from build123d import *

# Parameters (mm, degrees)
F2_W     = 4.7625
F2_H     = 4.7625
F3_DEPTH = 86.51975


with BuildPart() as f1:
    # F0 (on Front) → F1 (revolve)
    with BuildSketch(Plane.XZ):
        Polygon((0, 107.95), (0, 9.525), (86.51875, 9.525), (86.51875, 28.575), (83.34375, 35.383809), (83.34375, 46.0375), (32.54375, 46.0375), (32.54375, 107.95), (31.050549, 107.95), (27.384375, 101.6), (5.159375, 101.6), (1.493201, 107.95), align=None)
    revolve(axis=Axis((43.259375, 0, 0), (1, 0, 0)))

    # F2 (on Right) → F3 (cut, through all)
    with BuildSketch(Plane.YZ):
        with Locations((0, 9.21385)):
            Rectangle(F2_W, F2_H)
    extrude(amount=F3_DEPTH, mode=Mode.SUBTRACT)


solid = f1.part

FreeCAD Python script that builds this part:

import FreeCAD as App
import Part
import Sketcher
from FreeCAD import Vector
Q = App.Units.Quantity


def add_polygon(sketch, points):
    """Adds a closed chain of lines whose ends are joined by coincident constraints."""
    first, n = sketch.GeometryCount, len(points)
    for a, b in zip(points, points[1:] + points[:1]):
        sketch.addGeometry(Part.LineSegment(App.Vector(*a, 0), App.Vector(*b, 0)), False)
    for i in range(n):
        sketch.addConstraint(Sketcher.Constraint("Coincident", first + i, 2, first + (i + 1) % n, 1))

doc = App.newDocument("Part")
body = doc.addObject("PartDesign::Body", "Body")

# Sketch on XZ plane
sketch1 = body.newObject("Sketcher::SketchObject", "Sketch")
sketch1.AttachmentSupport = (doc.getObject("XZ_Plane"), [""])
sketch1.MapMode = "FlatFace"
add_polygon(sketch1, [(0, 108), (0, 9.5), (86.5, 9.5), (86.5, 28.6), (83.3, 35.4), (83.3, 46), (32.5, 46), (32.5, 108), (31.1, 108), (27.4, 101.6), (5.2, 101.6), (1.5, 108)])  # lines 0-11
sketch1.addConstraint([
    Sketcher.Constraint("Vertical", 0),
    Sketcher.Constraint("Horizontal", 1),
    Sketcher.Constraint("Vertical", 2),
    Sketcher.Constraint("Vertical", 4),
    Sketcher.Constraint("Horizontal", 5),
    Sketcher.Constraint("Vertical", 6),
    Sketcher.Constraint("Horizontal", 7),
    Sketcher.Constraint("Horizontal", 9),
    Sketcher.Constraint("Horizontal", 11),
    Sketcher.Constraint("PointOnObject", 0, 2, -2),
    Sketcher.Constraint("Horizontal", 7, 2, 10, 2),
    Sketcher.Constraint("Equal", 7, 11),
    Sketcher.Constraint("Equal", 8, 10),
    Sketcher.Constraint("DistanceX", 5, 2, 5, 1, Q("2 in")),
    Sketcher.Constraint("DistanceY", -1, 1, 8, 2, Q("4 in")),
    Sketcher.Constraint("Angle", 3, Q("115.000002 deg")),
    Sketcher.Constraint("Angle", 8, Q("-119.999999 deg")),
    Sketcher.Constraint("DistanceY", 2, 1, 2, 2, Q("0.75 in")),
    Sketcher.Constraint("DistanceX", 1, 1, 1, 2, Q("3.40625 in")),
    Sketcher.Constraint("DistanceX", 9, 2, 9, 1, Q("0.875 in")),
    Sketcher.Constraint("DistanceY", 0, 2, 0, 1, Q("3.875 in")),
    Sketcher.Constraint("DistanceY", 6, 1, 6, 2, Q("2.4375 in")),
    Sketcher.Constraint("DistanceY", -1, 1, 6, 2, Q("4.25 in")),
    Sketcher.Constraint("DistanceX", -1, 1, 3, 2, Q("3.28125 in")),
])
revolution = body.newObject("PartDesign::Revolution", "Revolution")
revolution.Profile = sketch1
revolution.ReferenceAxis = (sketch1, ["H_Axis"])
revolution.Angle = 360

# Sketch on YZ plane
sketch2 = body.newObject("Sketcher::SketchObject", "Sketch001")
sketch2.AttachmentSupport = (doc.getObject("YZ_Plane"), [""])
sketch2.MapMode = "FlatFace"
add_polygon(sketch2, [(-2.4, 11.6), (-2.4, 6.8), (2.4, 6.8), (2.4, 11.6)])  # lines 0-3
sketch2.addConstraint([
    Sketcher.Constraint("Vertical", 0),
    Sketcher.Constraint("Horizontal", 1),
    Sketcher.Constraint("Vertical", 2),
    Sketcher.Constraint("Horizontal", 3),
    Sketcher.Constraint("Equal", 3, 0),
    Sketcher.Constraint("DistanceX", 1, 1, 1, 2, Q("0.1875 in")),
    Sketcher.Constraint("DistanceX", 0, 2, -1, 1, Q("0.09375 in")),
    Sketcher.Constraint("DistanceY", -1, 1, 0, 2, Q("0.269 in")),
])
pocket1 = body.newObject("PartDesign::Pocket", "Pocket")
pocket1.Profile = sketch2
pocket1.Type = "ThroughAll"
pocket1.Reversed = True

doc.recompute()
